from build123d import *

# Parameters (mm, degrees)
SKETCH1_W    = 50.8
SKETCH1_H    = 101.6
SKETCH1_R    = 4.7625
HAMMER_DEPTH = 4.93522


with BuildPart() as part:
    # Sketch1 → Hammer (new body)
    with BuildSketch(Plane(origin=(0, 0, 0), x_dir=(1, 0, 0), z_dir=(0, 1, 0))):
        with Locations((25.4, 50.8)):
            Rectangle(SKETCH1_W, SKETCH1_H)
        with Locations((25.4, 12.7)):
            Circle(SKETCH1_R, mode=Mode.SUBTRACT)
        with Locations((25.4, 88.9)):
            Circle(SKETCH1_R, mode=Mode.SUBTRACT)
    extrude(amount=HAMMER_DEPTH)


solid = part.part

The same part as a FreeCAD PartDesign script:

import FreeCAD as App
import Part
import Sketcher

V = App.Vector
Q = App.Units.Quantity

doc = App.newDocument("Part")
body = doc.addObject("PartDesign::Body", "Body")

sketch1 = body.newObject("Sketcher::SketchObject", "Sketch")
sketch1.AttachmentSupport = (doc.getObject("XZ_Plane"), [""])
sketch1.MapMode = "FlatFace"
sketch1.addGeometry(Part.LineSegment(V(0, -101.6, 0), V(0, 0, 0)), False)
sketch1.addGeometry(Part.LineSegment(V(0, 0, 0), V(50.8, 0, 0)), False)
sketch1.addGeometry(Part.LineSegment(V(50.8, 0, 0), V(50.8, -101.6, 0)), False)
sketch1.addGeometry(Part.LineSegment(V(50.8, -101.6, 0), V(0, -101.6, 0)), False)
sketch1.addGeometry(Part.Circle(V(25.4, -12.7, 0), V(0, 0, 1), 4.8), False)
sketch1.addGeometry(Part.Circle(V(25.4, -88.9, 0), V(0, 0, 1), 4.8), False)
sketch1.addConstraint(Sketcher.Constraint("Coincident", 0, 2, 1, 1))
sketch1.addConstraint(Sketcher.Constraint("Coincident", 1, 2, 2, 1))
sketch1.addConstraint(Sketcher.Constraint("Coincident", 2, 2, 3, 1))
sketch1.addConstraint(Sketcher.Constraint("Coincident", 3, 2, 0, 1))
sketch1.addConstraint(Sketcher.Constraint("Vertical", 0))
sketch1.addConstraint(Sketcher.Constraint("Horizontal", 1))
sketch1.addConstraint(Sketcher.Constraint("Vertical", 2))
sketch1.addConstraint(Sketcher.Constraint("Horizontal", 3))
sketch1.addConstraint(Sketcher.Constraint("Coincident", 0, 2, -1, 1))
sketch1.addConstraint(Sketcher.Constraint("Equal", 4, 5))
sketch1.addConstraint(Sketcher.Constraint("Vertical", 4, 3, 5, 3))
sketch1.addConstraint(Sketcher.Constraint("DistanceX", 1, 1, 1, 2, Q("2 in")))
sketch1.addConstraint(Sketcher.Constraint("DistanceY", 0, 1, 0, 2, Q("4 in")))
sketch1.addConstraint(Sketcher.Constraint("Diameter", 4, Q("0.375 in")))
sketch1.addConstraint(Sketcher.Constraint("DistanceX", -1, 1, 4, 3, Q("1 in")))
sketch1.addConstraint(Sketcher.Constraint("DistanceY", 5, 3, 4, 3, Q("3 in")))
sketch1.addConstraint(Sketcher.Constraint("DistanceY", 4, 3, -1, 1, Q("0.5 in")))
pad1 = body.newObject("PartDesign::Pad", "Pad")
pad1.Profile = sketch1
pad1.Length = Q("0.1943 in")
pad1.Reversed = True

doc.recompute()
